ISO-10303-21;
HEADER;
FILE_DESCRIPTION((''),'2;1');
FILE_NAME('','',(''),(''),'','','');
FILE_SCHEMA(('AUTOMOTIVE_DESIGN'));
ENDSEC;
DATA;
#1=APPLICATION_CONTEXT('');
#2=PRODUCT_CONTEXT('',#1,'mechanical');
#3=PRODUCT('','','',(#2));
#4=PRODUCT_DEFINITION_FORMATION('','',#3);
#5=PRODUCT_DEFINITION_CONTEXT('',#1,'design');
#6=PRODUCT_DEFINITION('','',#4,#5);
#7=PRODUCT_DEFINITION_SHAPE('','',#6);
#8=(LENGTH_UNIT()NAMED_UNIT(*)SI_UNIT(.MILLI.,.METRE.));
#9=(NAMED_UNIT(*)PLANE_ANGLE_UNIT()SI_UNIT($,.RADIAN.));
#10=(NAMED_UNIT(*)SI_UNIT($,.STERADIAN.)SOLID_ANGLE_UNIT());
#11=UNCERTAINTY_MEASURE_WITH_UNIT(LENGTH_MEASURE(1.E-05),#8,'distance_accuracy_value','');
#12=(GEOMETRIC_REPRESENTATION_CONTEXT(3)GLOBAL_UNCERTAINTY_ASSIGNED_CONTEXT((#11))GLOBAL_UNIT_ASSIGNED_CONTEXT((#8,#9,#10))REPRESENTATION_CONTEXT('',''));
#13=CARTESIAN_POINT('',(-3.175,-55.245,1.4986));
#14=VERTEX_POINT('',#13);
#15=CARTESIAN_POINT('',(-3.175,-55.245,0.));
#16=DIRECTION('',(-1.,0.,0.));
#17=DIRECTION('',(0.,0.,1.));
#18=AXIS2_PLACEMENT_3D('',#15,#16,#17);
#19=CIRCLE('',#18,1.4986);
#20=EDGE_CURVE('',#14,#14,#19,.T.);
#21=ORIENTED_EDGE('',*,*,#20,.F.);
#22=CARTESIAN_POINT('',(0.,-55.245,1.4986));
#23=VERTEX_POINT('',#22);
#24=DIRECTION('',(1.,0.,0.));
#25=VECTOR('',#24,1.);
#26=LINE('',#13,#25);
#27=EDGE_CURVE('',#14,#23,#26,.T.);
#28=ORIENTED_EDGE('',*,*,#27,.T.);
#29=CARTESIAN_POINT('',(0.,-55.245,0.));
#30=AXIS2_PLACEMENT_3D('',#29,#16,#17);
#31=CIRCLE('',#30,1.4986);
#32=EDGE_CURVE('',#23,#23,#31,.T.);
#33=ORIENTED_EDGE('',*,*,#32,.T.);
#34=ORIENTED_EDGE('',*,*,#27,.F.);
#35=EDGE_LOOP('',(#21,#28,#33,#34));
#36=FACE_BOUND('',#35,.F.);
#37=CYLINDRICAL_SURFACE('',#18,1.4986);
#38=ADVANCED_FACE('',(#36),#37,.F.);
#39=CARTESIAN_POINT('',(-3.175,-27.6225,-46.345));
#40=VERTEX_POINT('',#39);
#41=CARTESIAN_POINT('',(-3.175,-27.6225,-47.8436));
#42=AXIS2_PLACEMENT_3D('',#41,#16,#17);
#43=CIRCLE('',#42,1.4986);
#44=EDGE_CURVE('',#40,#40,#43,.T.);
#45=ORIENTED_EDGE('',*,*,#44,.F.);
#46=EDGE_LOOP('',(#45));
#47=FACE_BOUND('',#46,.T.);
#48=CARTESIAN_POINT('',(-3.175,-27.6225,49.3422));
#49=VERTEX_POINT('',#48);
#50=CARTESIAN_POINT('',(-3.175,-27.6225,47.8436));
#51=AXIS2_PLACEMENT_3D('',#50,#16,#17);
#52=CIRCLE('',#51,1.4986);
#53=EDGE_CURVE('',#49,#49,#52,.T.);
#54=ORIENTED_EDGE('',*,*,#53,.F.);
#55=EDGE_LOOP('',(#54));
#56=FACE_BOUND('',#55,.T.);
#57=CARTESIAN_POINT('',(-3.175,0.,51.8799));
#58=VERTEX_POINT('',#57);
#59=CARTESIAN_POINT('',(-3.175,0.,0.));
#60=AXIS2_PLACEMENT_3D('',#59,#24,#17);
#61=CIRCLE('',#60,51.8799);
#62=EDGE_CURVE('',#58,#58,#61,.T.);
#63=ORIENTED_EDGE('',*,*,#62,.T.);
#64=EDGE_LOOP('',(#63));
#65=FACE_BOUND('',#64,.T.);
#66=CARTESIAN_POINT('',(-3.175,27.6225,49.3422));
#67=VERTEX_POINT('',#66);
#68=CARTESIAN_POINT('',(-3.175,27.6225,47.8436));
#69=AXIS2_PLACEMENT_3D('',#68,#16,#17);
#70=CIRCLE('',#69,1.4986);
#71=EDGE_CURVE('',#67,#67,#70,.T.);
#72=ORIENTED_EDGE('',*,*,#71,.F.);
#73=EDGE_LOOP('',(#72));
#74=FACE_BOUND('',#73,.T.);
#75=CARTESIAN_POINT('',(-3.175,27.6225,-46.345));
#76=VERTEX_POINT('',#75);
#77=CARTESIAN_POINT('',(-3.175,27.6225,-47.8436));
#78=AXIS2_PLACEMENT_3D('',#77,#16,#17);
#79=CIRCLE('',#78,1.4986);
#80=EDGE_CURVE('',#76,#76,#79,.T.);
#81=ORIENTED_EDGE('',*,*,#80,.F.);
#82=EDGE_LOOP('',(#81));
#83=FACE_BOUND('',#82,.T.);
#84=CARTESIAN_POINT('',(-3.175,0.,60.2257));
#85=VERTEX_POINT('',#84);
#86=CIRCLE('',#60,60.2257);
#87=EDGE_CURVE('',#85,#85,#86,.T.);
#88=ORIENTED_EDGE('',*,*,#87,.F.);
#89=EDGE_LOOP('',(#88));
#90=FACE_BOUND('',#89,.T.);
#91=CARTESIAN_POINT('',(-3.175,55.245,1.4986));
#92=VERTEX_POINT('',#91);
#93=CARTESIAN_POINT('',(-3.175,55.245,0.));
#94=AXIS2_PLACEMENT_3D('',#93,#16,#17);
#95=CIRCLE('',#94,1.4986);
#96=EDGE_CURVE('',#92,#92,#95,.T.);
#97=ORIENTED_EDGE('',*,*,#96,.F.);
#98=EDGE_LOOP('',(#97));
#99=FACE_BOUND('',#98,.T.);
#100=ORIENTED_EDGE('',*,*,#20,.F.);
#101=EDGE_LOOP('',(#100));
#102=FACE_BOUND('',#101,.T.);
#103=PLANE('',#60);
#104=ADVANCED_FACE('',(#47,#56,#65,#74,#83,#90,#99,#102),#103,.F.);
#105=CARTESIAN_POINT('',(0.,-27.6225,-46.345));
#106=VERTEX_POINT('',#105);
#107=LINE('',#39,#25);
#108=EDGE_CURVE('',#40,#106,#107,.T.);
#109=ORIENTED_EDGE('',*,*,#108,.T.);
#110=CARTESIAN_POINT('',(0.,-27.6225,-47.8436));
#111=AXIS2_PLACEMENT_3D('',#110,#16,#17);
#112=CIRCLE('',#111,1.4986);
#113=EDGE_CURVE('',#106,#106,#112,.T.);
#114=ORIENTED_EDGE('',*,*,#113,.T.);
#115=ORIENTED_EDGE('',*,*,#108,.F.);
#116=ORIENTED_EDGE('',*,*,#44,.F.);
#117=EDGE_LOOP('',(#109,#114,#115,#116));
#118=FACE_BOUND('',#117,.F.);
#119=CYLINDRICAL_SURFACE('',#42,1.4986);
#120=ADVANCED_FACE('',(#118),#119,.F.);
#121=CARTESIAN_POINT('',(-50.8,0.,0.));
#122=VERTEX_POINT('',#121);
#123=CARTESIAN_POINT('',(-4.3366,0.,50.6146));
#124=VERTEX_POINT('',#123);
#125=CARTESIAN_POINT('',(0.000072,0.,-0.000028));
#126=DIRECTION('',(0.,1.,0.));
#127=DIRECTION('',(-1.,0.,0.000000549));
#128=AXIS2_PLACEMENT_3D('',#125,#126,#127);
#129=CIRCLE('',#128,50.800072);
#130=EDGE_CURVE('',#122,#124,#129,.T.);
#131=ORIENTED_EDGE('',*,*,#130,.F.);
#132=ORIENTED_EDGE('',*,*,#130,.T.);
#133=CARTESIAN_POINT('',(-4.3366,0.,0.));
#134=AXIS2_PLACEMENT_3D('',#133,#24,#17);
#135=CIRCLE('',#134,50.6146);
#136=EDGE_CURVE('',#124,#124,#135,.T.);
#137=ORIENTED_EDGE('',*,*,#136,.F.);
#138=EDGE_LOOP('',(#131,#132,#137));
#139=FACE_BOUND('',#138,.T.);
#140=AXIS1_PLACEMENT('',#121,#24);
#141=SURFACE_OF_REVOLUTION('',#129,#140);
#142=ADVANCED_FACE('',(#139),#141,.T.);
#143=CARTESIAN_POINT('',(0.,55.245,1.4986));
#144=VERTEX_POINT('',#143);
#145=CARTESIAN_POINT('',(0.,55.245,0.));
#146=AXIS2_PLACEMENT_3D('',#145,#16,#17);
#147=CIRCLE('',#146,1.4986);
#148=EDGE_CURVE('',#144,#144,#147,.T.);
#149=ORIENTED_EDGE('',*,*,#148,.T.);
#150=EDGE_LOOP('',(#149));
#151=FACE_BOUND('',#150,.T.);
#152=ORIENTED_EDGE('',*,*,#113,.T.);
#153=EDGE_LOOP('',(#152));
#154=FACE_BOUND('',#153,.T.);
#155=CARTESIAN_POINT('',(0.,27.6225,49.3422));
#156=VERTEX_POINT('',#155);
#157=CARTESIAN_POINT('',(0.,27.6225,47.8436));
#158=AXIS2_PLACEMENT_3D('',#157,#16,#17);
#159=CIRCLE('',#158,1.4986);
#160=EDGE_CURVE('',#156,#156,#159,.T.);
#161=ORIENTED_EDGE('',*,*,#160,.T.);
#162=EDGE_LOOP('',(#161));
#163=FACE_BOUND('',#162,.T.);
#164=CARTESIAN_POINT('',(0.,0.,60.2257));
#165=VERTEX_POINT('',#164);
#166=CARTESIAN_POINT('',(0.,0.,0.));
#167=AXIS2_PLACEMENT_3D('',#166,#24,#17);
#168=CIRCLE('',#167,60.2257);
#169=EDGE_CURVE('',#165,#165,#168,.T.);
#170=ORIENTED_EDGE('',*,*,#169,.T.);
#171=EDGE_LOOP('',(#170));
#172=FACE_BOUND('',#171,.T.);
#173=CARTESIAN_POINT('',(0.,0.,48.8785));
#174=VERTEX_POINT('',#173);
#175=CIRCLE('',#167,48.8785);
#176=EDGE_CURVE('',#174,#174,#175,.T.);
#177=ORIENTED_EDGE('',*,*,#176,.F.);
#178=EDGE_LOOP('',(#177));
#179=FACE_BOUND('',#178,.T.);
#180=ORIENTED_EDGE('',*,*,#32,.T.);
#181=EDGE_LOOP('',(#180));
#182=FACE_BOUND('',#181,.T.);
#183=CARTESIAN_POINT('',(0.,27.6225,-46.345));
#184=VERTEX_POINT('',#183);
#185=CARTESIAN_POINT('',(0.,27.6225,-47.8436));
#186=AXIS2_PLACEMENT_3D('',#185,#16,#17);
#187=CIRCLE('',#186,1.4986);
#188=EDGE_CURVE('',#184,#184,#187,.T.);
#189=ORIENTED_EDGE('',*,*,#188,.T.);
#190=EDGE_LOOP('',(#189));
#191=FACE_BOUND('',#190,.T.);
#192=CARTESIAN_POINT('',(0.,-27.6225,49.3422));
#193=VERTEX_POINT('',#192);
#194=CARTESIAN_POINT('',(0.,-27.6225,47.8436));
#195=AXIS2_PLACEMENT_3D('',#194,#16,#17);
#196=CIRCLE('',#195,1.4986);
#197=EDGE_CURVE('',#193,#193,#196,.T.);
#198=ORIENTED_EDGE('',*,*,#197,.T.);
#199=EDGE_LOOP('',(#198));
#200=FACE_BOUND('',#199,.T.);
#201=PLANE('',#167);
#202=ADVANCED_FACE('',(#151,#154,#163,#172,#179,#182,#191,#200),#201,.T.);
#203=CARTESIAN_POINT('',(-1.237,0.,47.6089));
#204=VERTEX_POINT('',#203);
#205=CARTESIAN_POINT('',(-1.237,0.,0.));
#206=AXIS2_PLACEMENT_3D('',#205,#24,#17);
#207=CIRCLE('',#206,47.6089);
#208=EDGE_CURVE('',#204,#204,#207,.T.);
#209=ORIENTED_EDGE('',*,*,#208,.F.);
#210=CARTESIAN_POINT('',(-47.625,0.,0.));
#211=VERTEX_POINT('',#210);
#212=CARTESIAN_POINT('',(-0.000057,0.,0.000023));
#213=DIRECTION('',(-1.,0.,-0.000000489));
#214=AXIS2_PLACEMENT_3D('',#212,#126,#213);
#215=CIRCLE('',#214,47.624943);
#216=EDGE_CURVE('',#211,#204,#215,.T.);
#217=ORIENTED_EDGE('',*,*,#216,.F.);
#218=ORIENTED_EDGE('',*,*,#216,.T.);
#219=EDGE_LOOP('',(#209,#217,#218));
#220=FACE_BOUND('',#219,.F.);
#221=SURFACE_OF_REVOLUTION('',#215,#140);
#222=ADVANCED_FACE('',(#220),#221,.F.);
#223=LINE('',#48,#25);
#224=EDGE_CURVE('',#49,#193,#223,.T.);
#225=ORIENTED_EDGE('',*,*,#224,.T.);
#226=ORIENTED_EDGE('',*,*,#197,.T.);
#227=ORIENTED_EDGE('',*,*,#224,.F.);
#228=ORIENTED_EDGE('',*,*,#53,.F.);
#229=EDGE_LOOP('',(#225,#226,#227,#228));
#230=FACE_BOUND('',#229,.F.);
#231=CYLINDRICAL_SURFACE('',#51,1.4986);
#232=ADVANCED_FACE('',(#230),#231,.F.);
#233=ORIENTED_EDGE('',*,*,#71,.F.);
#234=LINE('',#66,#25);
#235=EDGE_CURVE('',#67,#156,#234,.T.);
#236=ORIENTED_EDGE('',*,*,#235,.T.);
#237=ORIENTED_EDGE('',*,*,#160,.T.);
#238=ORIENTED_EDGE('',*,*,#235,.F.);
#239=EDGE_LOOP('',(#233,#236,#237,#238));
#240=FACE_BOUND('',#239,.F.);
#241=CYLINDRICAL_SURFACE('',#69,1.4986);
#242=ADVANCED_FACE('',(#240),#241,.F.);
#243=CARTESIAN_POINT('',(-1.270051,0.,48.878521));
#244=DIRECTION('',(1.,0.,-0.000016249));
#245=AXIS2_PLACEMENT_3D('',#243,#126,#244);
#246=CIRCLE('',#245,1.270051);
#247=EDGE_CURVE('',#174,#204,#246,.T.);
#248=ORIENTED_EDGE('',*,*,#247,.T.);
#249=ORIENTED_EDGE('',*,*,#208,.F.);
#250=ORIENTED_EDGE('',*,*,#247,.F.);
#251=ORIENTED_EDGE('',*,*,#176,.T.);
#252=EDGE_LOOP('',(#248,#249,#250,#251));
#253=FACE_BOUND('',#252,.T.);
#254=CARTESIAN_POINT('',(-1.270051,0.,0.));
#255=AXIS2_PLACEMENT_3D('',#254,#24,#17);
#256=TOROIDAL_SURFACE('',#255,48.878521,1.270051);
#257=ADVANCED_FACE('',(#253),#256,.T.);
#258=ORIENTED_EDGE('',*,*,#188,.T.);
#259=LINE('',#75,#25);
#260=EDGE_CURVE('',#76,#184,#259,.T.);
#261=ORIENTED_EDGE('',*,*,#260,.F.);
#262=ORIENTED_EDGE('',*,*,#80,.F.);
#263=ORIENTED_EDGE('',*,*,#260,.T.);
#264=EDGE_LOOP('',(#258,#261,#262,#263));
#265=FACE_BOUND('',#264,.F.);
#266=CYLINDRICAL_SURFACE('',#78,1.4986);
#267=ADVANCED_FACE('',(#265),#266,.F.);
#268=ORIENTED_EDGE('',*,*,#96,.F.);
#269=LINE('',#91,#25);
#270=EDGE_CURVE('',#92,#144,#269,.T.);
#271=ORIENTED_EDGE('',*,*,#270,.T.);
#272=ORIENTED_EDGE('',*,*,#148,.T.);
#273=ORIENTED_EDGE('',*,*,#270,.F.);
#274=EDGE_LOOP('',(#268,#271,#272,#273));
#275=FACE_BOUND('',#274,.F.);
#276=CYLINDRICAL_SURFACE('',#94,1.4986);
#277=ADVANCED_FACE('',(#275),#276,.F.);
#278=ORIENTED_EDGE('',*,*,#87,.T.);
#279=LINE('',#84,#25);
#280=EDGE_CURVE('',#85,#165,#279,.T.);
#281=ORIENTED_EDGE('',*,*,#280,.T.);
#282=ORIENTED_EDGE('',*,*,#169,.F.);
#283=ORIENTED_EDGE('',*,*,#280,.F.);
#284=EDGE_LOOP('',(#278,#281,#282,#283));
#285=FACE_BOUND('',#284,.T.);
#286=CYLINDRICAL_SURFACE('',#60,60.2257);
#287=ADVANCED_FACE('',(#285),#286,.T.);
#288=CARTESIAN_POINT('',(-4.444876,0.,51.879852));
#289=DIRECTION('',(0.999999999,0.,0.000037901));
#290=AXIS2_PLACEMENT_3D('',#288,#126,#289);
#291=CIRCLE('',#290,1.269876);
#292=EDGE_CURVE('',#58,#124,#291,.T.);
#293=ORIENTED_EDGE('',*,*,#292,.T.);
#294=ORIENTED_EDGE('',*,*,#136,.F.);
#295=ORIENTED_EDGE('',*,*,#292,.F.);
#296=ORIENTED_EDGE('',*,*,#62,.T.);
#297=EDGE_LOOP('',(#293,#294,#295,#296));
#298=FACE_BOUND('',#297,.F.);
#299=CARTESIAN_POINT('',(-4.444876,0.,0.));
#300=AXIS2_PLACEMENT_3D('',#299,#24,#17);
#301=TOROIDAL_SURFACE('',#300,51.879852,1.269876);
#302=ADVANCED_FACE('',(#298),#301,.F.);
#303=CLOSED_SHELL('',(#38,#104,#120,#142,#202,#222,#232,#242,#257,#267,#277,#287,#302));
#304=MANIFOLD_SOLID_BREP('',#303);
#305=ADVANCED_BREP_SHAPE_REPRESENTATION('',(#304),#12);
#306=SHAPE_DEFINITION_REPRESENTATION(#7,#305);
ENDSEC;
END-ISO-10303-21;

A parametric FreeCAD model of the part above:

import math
import FreeCAD as App
import Part
import Sketcher
Q = App.Units.Quantity

doc = App.newDocument("Part")
body = doc.addObject("PartDesign::Body", "Body")

sketch1 = doc.addObject("Sketcher::SketchObject", "Sketch")
body.addObject(sketch1)
sketch1.AttachmentSupport = (doc.XZ_Plane, [""])
sketch1.MapMode = "FlatFace"
sketch1.addGeometry(Part.LineSegment(App.Vector(-47.625, 0, 0), App.Vector(-50.8, 0, 0)), False)
sketch1.addGeometry(Part.ArcOfCircle(Part.Circle(App.Vector(0, 0, 0), App.Vector(0, 0, 1), 50.8), math.radians(94.897076), math.radians(180)), False)
sketch1.addGeometry(Part.ArcOfCircle(Part.Circle(App.Vector(-4.445, 51.8799, 0), App.Vector(0, 0, 1), 1.27), math.radians(-85.103348), math.radians(0)), False)
sketch1.addGeometry(Part.LineSegment(App.Vector(-3.175, 51.8799, 0), App.Vector(-3.175, 60.2257, 0)), False)
sketch1.addGeometry(Part.LineSegment(App.Vector(-3.175, 60.2257, 0), App.Vector(0, 60.2257, 0)), False)
sketch1.addGeometry(Part.LineSegment(App.Vector(0, 60.2257, 0), App.Vector(0, 48.8785, 0)), False)
sketch1.addGeometry(Part.ArcOfCircle(Part.Circle(App.Vector(-1.27, 48.8785, 0), App.Vector(0, 0, 1), 1.27), math.radians(-88.511078), math.radians(0)), False)
sketch1.addGeometry(Part.ArcOfCircle(Part.Circle(App.Vector(0, 0, 0), App.Vector(0, 0, 1), 47.625), math.radians(91.488355), math.radians(180)), False)
sketch1.addConstraint(Sketcher.Constraint("Coincident", 0, 2, 1, 2))
sketch1.addConstraint(Sketcher.Constraint("Tangent", 1, 1, 2, 1))
sketch1.addConstraint(Sketcher.Constraint("Tangent", 2, 2, 3, 1))
sketch1.addConstraint(Sketcher.Constraint("Coincident", 3, 2, 4, 1))
sketch1.addConstraint(Sketcher.Constraint("Coincident", 4, 2, 5, 1))
sketch1.addConstraint(Sketcher.Constraint("Tangent", 5, 2, 6, 2))
sketch1.addConstraint(Sketcher.Constraint("Tangent", 6, 1, 7, 1))
sketch1.addConstraint(Sketcher.Constraint("Coincident", 7, 2, 0, 1))
sketch1.addConstraint(Sketcher.Constraint("Horizontal", 0))
sketch1.addConstraint(Sketcher.Constraint("Vertical", 3))
sketch1.addConstraint(Sketcher.Constraint("Horizontal", 4))
sketch1.addConstraint(Sketcher.Constraint("Vertical", 5))
sketch1.addConstraint(Sketcher.Constraint("Coincident", 1, 3, -1, 1))
sketch1.addConstraint(Sketcher.Constraint("Coincident", 7, 3, -1, 1))
sketch1.addConstraint(Sketcher.Constraint("Equal", 2, 6))
sketch1.addConstraint(Sketcher.Constraint("PointOnObject", 0, 2, -1))
sketch1.addConstraint(Sketcher.Constraint("PointOnObject", 4, 2, -2))
sketch1.addConstraint(Sketcher.Constraint("Equal", 0, 4))
sketch1.addConstraint(Sketcher.Constraint("Radius", 1, Q("2 in")))
sketch1.addConstraint(Sketcher.Constraint("Radius", 2, Q("0.05 in")))
sketch1.addConstraint(Sketcher.Constraint("DistanceX", 0, 2, 0, 1, Q("0.125 in")))
sketch1.addConstraint(Sketcher.Constraint("DistanceY", 3, 1, 3, 2, Q("8.3458 mm")))
revolution = doc.addObject("PartDesign::Revolution", "Revolution")
body.addObject(revolution)
revolution.Profile = sketch1
revolution.ReferenceAxis = (sketch1, ["H_Axis"])
revolution.Angle = 360

sketch2 = doc.addObject("Sketcher::SketchObject", "Sketch001")
body.addObject(sketch2)
sketch2.AttachmentSupport = (doc.YZ_Plane, [""])
sketch2.MapMode = "FlatFace"
sketch2.AttachmentOffset = App.Placement(App.Vector(0, 0, -0.125 * 25.4), App.Rotation())
sketch2.addGeometry(Part.Circle(App.Vector(55.245, 0, 0), App.Vector(0, 0, 1), 1.4986), False)
sketch2.addGeometry(Part.Circle(App.Vector(27.6225, -47.8436, 0), App.Vector(0, 0, 1), 1.4986), False)
sketch2.addGeometry(Part.Circle(App.Vector(-27.6225, -47.8436, 0), App.Vector(0, 0, 1), 1.4986), False)
sketch2.addGeometry(Part.Circle(App.Vector(-55.245, 0, 0), App.Vector(0, 0, 1), 1.4986), False)
sketch2.addGeometry(Part.Circle(App.Vector(-27.6225, 47.8436, 0), App.Vector(0, 0, 1), 1.4986), False)
sketch2.addGeometry(Part.Circle(App.Vector(27.6225, 47.8436, 0), App.Vector(0, 0, 1), 1.4986), False)
sketch2.addConstraint(Sketcher.Constraint("Equal", 0, 1))
sketch2.addConstraint(Sketcher.Constraint("Equal", 1, 2))
sketch2.addConstraint(Sketcher.Constraint("Equal", 2, 3))
sketch2.addConstraint(Sketcher.Constraint("Equal", 3, 4))
sketch2.addConstraint(Sketcher.Constraint("Equal", 4, 5))
sketch2.addConstraint(Sketcher.Constraint("Symmetric", 0, 3, 3, 3, -1, 1))
sketch2.addConstraint(Sketcher.Constraint("Symmetric", 1, 3, 4, 3, -1, 1))
sketch2.addConstraint(Sketcher.Constraint("Symmetric", 2, 3, 5, 3, -1, 1))
sketch2.addConstraint(Sketcher.Constraint("Symmetric", 1, 3, 2, 3, -2))
sketch2.addConstraint(Sketcher.Constraint("PointOnObject", 0, 3, -1))
sketch2.addConstraint(Sketcher.Constraint("Diameter", 0, Q("0.118 in")))
sketch2.addConstraint(Sketcher.Constraint("DistanceX", -1, 1, 0, 3, Q("2.175 in")))
sketch2.addConstraint(Sketcher.Constraint("DistanceX", 2, 3, 1, 3, Q("2.175 in")))
sketch2.addConstraint(Sketcher.Constraint("DistanceY", 1, 3, -1, 1, Q("1.8836 in")))
pocket1 = doc.addObject("PartDesign::Pocket", "Pocket")
body.addObject(pocket1)
pocket1.Profile = sketch2
pocket1.Length = Q("10 in")
pocket1.Reversed = True

doc.recompute()
